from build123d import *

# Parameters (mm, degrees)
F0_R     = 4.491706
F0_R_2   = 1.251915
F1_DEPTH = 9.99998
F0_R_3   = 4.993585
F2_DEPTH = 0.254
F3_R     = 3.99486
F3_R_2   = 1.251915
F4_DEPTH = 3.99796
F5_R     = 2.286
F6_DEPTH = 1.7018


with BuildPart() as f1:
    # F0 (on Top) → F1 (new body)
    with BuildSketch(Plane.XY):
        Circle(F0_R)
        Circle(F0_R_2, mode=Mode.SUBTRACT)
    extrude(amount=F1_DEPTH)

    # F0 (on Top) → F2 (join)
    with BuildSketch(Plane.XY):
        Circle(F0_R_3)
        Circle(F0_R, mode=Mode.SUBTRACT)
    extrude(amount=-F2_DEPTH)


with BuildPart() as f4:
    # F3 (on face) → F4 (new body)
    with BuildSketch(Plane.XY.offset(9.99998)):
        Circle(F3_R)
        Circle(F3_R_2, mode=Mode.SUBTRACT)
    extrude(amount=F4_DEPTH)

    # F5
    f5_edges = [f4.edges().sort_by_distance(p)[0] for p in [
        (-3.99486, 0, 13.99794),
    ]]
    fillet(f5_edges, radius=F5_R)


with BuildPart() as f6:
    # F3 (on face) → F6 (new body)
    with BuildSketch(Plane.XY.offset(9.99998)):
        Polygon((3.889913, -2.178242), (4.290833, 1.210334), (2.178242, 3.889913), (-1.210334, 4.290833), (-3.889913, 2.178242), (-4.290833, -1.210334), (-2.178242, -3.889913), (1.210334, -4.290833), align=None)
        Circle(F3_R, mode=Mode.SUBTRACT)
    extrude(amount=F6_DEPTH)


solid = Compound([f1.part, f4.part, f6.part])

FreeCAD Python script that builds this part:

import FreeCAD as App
import Part
import Sketcher

V = App.Vector
Q = App.Units.Quantity


def edges_at(feature, points):
    """Names of the edges that pass closest to the given points."""
    edges = feature.Shape.Edges
    near = lambda p: min(range(len(edges)), key=lambda i: edges[i].distToShape(Part.Vertex(*p))[0])
    return sorted({f"Edge{near(p) + 1}" for p in points})


def add_polygon(sketch, points):
    """Adds a closed chain of lines whose ends are joined by coincident constraints."""
    first, n = sketch.GeometryCount, len(points)
    for a, b in zip(points, points[1:] + points[:1]):
        sketch.addGeometry(Part.LineSegment(App.Vector(*a, 0), App.Vector(*b, 0)), False)
    for i in range(n):
        sketch.addConstraint(Sketcher.Constraint("Coincident", first + i, 2, first + (i + 1) % n, 1))

doc = App.newDocument("Part")
body = doc.addObject("PartDesign::Body", "Body")
body.AllowCompound = True

sketch1 = body.newObject("Sketcher::SketchObject", "Sketch")
sketch1.AttachmentSupport = (doc.getObject("XY_Plane"), [""])
sketch1.MapMode = "FlatFace"
sketch1.addGeometry([
    Part.Circle(V(0, 0, 0), V(0, 0, 1), 4.491706),
    Part.Circle(V(0, 0, 0), V(0, 0, 1), 1.251915),
], False)
sketch1.addConstraint([
    Sketcher.Constraint("Coincident", 0, 3, -1, 1),
    Sketcher.Constraint("Coincident", 1, 3, -1, 1),
    Sketcher.Constraint("Diameter", 1, 2.50383),
    Sketcher.Constraint("Diameter", 0, 8.983412),
])
pad1 = body.newObject("PartDesign::Pad", "Pad")
pad1.Profile = sketch1
pad1.Length = Q("0.3937 in")

sketch2 = body.newObject("Sketcher::SketchObject", "Sketch001")
sketch2.AttachmentSupport = (doc.getObject("XY_Plane"), [""])
sketch2.MapMode = "FlatFace"
sketch2.addGeometry([
    Part.Circle(V(0, 0, 0), V(0, 0, 1), 4.993585),
    Part.Circle(V(0, 0, 0), V(0, 0, 1), 4.491706),
], False)
sketch2.addConstraint([
    Sketcher.Constraint("Coincident", 0, 3, -1, 1),
    Sketcher.Constraint("Coincident", 1, 3, -1, 1),
    Sketcher.Constraint("Diameter", 0, 9.98717),
    Sketcher.Constraint("Diameter", 1, 8.983412),
])
pad2 = body.newObject("PartDesign::Pad", "Pad001")
pad2.Profile = sketch2
pad2.Length = Q("0.01 in")
pad2.Reversed = True
body2 = doc.addObject("PartDesign::Body", "Body001")

sketch3 = body2.newObject("Sketcher::SketchObject", "Sketch002")
sketch3.AttachmentSupport = (doc.getObject("XY_Plane001"), [""])
sketch3.MapMode = "FlatFace"
sketch3.AttachmentOffset = App.Placement(V(0, 0, 0.3937 * 25.4), App.Rotation())
sketch3.addGeometry([
    Part.Circle(V(0, 0, 0), V(0, 0, 1), 3.99486),
    Part.Circle(V(0, 0, 0), V(0, 0, 1), 1.251915),
], False)
sketch3.addConstraint([
    Sketcher.Constraint("Coincident", 0, 3, -1, 1),
    Sketcher.Constraint("Coincident", 1, 3, -1, 1),
    Sketcher.Constraint("Diameter", 0, 7.98972),
    Sketcher.Constraint("Diameter", 1, 2.50383),
])
pad3 = body2.newObject("PartDesign::Pad", "Pad002")
pad3.Profile = sketch3
pad3.Length = Q("0.1574 in")
doc.recompute()

fillet = body2.newObject("PartDesign::Fillet", "Fillet")
fillet.Base = (pad3, edges_at(pad3, [(-3.995, 0, 13.998)]))
fillet.Radius = Q("0.09 in")
body3 = doc.addObject("PartDesign::Body", "Body002")

sketch4 = body3.newObject("Sketcher::SketchObject", "Sketch003")
sketch4.AttachmentSupport = (doc.getObject("XY_Plane002"), [""])
sketch4.MapMode = "FlatFace"
sketch4.AttachmentOffset = App.Placement(V(0, 0, 0.3937 * 25.4), App.Rotation())
add_polygon(sketch4, [(3.889913, -2.178242), (4.290833, 1.210334), (2.178242, 3.889913), (-1.210334, 4.290833), (-3.889913, 2.178242), (-4.290833, -1.210334), (-2.178242, -3.889913), (1.210334, -4.290833)])
sketch4.addGeometry(Part.Circle(V(0, 0, 0), V(0, 0, 1), 3.99486), False)
sketch4.addConstraint([
    Sketcher.Constraint("Coincident", 8, 3, -1, 1),
    Sketcher.Constraint("Symmetric", 0, 2, 4, 2, -1, 1),
    Sketcher.Constraint("Symmetric", 1, 2, 5, 2, -1, 1),
    Sketcher.Constraint("Symmetric", 2, 2, 6, 2, -1, 1),
    Sketcher.Constraint("Symmetric", 3, 2, 7, 2, -1, 1),
    Sketcher.Constraint("Perpendicular", 0, 2),
    Sketcher.Constraint("Perpendicular", 1, 3),
    Sketcher.Constraint("Equal", 0, 1),
    Sketcher.Constraint("Equal", 1, 2),
    Sketcher.Constraint("Equal", 2, 3),
    Sketcher.Constraint("Diameter", 8, 7.98972),
    Sketcher.Constraint("DistanceY", 0, 2, 2, 2, 3.080499),
    Sketcher.Constraint("Distance", 0, 3.412211),
    Sketcher.Constraint("DistanceX", -1, 1, 1, 2, 2.178242),
])
pad4 = body3.newObject("PartDesign::Pad", "Pad003")
pad4.Profile = sketch4
pad4.Length = Q("0.067 in")

doc.recompute()
